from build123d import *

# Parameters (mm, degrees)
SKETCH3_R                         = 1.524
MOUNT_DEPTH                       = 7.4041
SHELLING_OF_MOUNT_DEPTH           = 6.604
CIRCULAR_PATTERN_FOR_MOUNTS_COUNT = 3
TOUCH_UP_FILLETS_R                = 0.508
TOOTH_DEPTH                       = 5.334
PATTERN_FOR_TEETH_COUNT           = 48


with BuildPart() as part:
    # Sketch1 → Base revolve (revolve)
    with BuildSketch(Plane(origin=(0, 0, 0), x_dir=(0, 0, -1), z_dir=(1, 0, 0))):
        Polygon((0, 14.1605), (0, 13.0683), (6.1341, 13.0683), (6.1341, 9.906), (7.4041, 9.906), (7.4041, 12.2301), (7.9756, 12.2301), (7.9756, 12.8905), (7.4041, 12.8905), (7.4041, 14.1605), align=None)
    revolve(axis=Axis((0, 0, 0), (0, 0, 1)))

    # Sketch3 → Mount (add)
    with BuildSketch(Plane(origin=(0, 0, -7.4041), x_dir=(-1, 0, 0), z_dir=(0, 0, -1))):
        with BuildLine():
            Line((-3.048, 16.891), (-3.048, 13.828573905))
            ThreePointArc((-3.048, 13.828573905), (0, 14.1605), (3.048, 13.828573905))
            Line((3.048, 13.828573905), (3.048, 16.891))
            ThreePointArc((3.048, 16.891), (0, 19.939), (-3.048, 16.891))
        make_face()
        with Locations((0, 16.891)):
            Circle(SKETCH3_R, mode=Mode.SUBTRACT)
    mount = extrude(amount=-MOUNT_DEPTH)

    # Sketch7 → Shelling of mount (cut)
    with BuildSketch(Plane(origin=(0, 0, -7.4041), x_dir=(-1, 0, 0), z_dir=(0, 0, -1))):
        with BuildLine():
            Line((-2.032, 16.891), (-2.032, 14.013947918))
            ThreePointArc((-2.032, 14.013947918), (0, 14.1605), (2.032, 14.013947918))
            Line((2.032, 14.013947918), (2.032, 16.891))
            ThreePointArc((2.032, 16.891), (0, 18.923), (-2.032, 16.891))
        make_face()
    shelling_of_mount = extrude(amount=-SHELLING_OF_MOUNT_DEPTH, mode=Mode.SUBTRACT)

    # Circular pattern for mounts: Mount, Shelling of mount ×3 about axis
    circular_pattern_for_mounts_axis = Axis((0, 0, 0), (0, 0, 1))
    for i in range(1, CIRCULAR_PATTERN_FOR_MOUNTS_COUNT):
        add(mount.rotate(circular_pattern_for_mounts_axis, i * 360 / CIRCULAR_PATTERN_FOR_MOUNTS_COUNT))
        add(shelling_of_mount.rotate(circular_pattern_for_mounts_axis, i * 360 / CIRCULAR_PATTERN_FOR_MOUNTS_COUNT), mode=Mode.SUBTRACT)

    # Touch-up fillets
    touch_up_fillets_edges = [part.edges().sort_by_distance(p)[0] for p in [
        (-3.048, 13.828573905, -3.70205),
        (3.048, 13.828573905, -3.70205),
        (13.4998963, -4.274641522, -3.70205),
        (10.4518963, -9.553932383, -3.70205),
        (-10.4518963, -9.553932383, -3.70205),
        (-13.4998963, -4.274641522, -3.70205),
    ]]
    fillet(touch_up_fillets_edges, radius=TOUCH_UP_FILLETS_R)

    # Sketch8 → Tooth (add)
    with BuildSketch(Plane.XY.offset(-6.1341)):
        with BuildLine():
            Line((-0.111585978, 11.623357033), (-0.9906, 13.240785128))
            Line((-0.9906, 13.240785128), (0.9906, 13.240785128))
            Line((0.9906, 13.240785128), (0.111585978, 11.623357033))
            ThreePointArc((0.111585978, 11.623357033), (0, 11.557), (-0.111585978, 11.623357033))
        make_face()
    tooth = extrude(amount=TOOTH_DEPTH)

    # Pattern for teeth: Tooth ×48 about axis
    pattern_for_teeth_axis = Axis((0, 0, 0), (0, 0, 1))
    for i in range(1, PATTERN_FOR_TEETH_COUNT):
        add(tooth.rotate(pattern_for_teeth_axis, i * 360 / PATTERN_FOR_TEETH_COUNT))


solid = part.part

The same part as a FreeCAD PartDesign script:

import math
import FreeCAD as App
import Part
import Sketcher
from FreeCAD import Vector
Q = App.Units.Quantity


def edges_at(feature, points):
    """Names of the edges that pass closest to the given points."""
    edges = feature.Shape.Edges
    near = lambda p: min(range(len(edges)), key=lambda i: edges[i].distToShape(Part.Vertex(*p))[0])
    return sorted({f"Edge{near(p) + 1}" for p in points})


def add_polygon(sketch, points):
    """Adds a closed chain of lines whose ends are joined by coincident constraints."""
    first, n = sketch.GeometryCount, len(points)
    for a, b in zip(points, points[1:] + points[:1]):
        sketch.addGeometry(Part.LineSegment(App.Vector(*a, 0), App.Vector(*b, 0)), False)
    for i in range(n):
        sketch.addConstraint(Sketcher.Constraint("Coincident", first + i, 2, first + (i + 1) % n, 1))

doc = App.newDocument("Part")
body = doc.addObject("PartDesign::Body", "Body")

# Sketch on YZ plane
sketch1 = body.newObject("Sketcher::SketchObject", "Sketch")
sketch1.AttachmentSupport = (doc.getObject("YZ_Plane"), [""])
sketch1.MapMode = "FlatFace"
add_polygon(sketch1, [(14.2, 0), (13.1, 0), (13.1, -6.1), (9.9, -6.1), (9.9, -7.4), (12.2, -7.4), (12.2, -8), (12.9, -8), (12.9, -7.4), (14.2, -7.4)])  # lines 0-9
sketch1.addConstraint([
    Sketcher.Constraint("Horizontal", 0),
    Sketcher.Constraint("Vertical", 1),
    Sketcher.Constraint("Horizontal", 2),
    Sketcher.Constraint("Vertical", 3),
    Sketcher.Constraint("Horizontal", 4),
    Sketcher.Constraint("Vertical", 5),
    Sketcher.Constraint("Horizontal", 6),
    Sketcher.Constraint("Vertical", 7),
    Sketcher.Constraint("Horizontal", 8),
    Sketcher.Constraint("Vertical", 9),
    Sketcher.Constraint("PointOnObject", 0, 2, -1),
    Sketcher.Constraint("Horizontal", 4, 2, 7, 2),
    Sketcher.Constraint("Equal", 8, 3),
    Sketcher.Constraint("DistanceX", 8, 1, 8, 2, Q("0.05 in")),
    Sketcher.Constraint("DistanceX", 0, 2, 0, 1, Q("0.043 in")),
    Sketcher.Constraint("DistanceX", 6, 1, 6, 2, Q("0.026 in")),
    Sketcher.Constraint("DistanceX", -1, 1, 2, 2, Q("0.39 in")),
    Sketcher.Constraint("DistanceX", 2, 2, 2, 1, Q("0.1245 in")),
    Sketcher.Constraint("DistanceY", 1, 2, 1, 1, Q("0.2415 in")),
    Sketcher.Constraint("DistanceY", 5, 2, 5, 1, Q("0.0225 in")),
])
revolution = body.newObject("PartDesign::Revolution", "Revolution")
revolution.Profile = sketch1
revolution.ReferenceAxis = (sketch1, ["V_Axis"])
revolution.Angle = 360

# Sketch on XY plane
sketch2 = body.newObject("Sketcher::SketchObject", "Sketch001")
sketch2.AttachmentSupport = (doc.getObject("XY_Plane"), [""])
sketch2.MapMode = "FlatFace"
sketch2.AttachmentOffset = App.Placement(Vector(0, 0, -0.2915 * 25.4), App.Rotation())
sketch2.addGeometry([
    Part.LineSegment(Vector(3, 16.9, 0), Vector(3, 13.8, 0)),  # 0
    Part.ArcOfCircle(Part.Circle(Vector(0, 0, 0), Vector(0, 0, 1), 14.2), math.radians(78), math.radians(102)),  # 1
    Part.LineSegment(Vector(-3, 13.8, 0), Vector(-3, 16.9, 0)),  # 2
    Part.ArcOfCircle(Part.Circle(Vector(0, 16.9, 0), Vector(0, 0, 1), 3), math.radians(0), math.radians(180)),  # 3
    Part.Circle(Vector(0, 16.9, 0), Vector(0, 0, 1), 1.5),  # 4
], False)
sketch2.addConstraint([
    Sketcher.Constraint("Coincident", 0, 2, 1, 1),
    Sketcher.Constraint("Coincident", 1, 2, 2, 1),
    Sketcher.Constraint("Tangent", 2, 2, 3, 2),
    Sketcher.Constraint("Tangent", 3, 1, 0, 1),
    Sketcher.Constraint("Vertical", 0),
    Sketcher.Constraint("Vertical", 2),
    Sketcher.Constraint("Coincident", 1, 3, -1, 1),
    Sketcher.Constraint("Coincident", 4, 3, 3, 3),
    Sketcher.Constraint("PointOnObject", 3, 3, -2),
    Sketcher.Constraint("Diameter", 4, Q("0.12 in")),
    Sketcher.Constraint("Radius", 3, Q("0.12 in")),
    Sketcher.Constraint("Radius", 1, Q("0.5575 in")),
    Sketcher.Constraint("DistanceY", -1, 1, 3, 3, Q("0.665 in")),
])
pad1 = body.newObject("PartDesign::Pad", "Pad")
pad1.Profile = sketch2
pad1.Length = Q("0.2915 in")

# Sketch on XY plane
sketch3 = body.newObject("Sketcher::SketchObject", "Sketch002")
sketch3.AttachmentSupport = (doc.getObject("XY_Plane"), [""])
sketch3.MapMode = "FlatFace"
sketch3.AttachmentOffset = App.Placement(Vector(0, 0, -0.2915 * 25.4), App.Rotation())
sketch3.addGeometry([
    Part.LineSegment(Vector(2, 16.9, 0), Vector(2, 14, 0)),
    Part.ArcOfCircle(Part.Circle(Vector(0, 0, 0), Vector(0, 0, 1), 14.2), math.radians(81.75), math.radians(98.25)),
    Part.LineSegment(Vector(-2, 14, 0), Vector(-2, 16.9, 0)),
    Part.ArcOfCircle(Part.Circle(Vector(0, 16.9, 0), Vector(0, 0, 1), 2), math.radians(0), math.radians(180)),
], False)
sketch3.addConstraint([
    Sketcher.Constraint("Coincident", 0, 2, 1, 1),
    Sketcher.Constraint("Coincident", 1, 2, 2, 1),
    Sketcher.Constraint("Tangent", 2, 2, 3, 2),
    Sketcher.Constraint("Tangent", 3, 1, 0, 1),
    Sketcher.Constraint("Vertical", 0),
    Sketcher.Constraint("Vertical", 2),
    Sketcher.Constraint("Coincident", 1, 3, -1, 1),
    Sketcher.Constraint("PointOnObject", 3, 3, -2),
    Sketcher.Constraint("Radius", 3, Q("0.08 in")),
    Sketcher.Constraint("Radius", 1, Q("0.5575 in")),
    Sketcher.Constraint("DistanceY", -1, 1, 3, 3, Q("0.665 in")),
])
pocket1 = body.newObject("PartDesign::Pocket", "Pocket")
pocket1.Profile = sketch3
pocket1.Length = Q("0.26 in")
pocket1.Reversed = True
doc.recompute()

polarpattern = body.newObject("PartDesign::PolarPattern", "PolarPattern")
polarpattern.Originals = [pad1, pocket1]
polarpattern.Axis = (doc.getObject("Z_Axis"), [""])
polarpattern.Angle = 360
polarpattern.Occurrences = 3
body.Tip = polarpattern
doc.recompute()

fillet = body.newObject("PartDesign::Fillet", "Fillet")
fillet.Base = (polarpattern, edges_at(polarpattern, [
    (-3.048, 13.829, -3.702),
    (3.048, 13.829, -3.702),
    (13.5, -4.275, -3.702),
    (10.452, -9.554, -3.702),
    (-10.452, -9.554, -3.702),
    (-13.5, -4.275, -3.702),
]))
fillet.Radius = Q("0.02 in")

# Sketch on XY plane
sketch4 = body.newObject("Sketcher::SketchObject", "Sketch003")
sketch4.AttachmentSupport = (doc.getObject("XY_Plane"), [""])
sketch4.MapMode = "FlatFace"
sketch4.AttachmentOffset = App.Placement(Vector(0, 0, -0.2415 * 25.4), App.Rotation())
sketch4.addGeometry([
    Part.LineSegment(Vector(-0.99, 13.24, 0), Vector(-0.11, 11.62, 0)),
    Part.ArcOfCircle(Part.Circle(Vector(0, 11.68, 0), Vector(0, 0, 1), 0.13), math.radians(-151), math.radians(-29)),
    Part.LineSegment(Vector(0.11, 11.62, 0), Vector(0.99, 13.24, 0)),
    Part.LineSegment(Vector(0.99, 13.24, 0), Vector(-0.99, 13.24, 0)),
], False)
sketch4.addConstraint([
    Sketcher.Constraint("Tangent", 0, 2, 1, 1),
    Sketcher.Constraint("Tangent", 1, 2, 2, 1),
    Sketcher.Constraint("Coincident", 2, 2, 3, 1),
    Sketcher.Constraint("Coincident", 3, 2, 0, 1),
    Sketcher.Constraint("Horizontal", 3),
    Sketcher.Constraint("Symmetric", 0, 2, 1, 2, -2),
    Sketcher.Constraint("Radius", 1, Q("0.005 in")),
    Sketcher.Constraint("DistanceX", 3, 2, 3, 1, Q("0.078 in")),
    Sketcher.Constraint("DistanceY", -1, 1, 1, 3, Q("0.46 in")),
    Sketcher.Constraint("DistanceX", 0, 2, 1, 2, Q("0.223172 mm")),
])
pad2 = body.newObject("PartDesign::Pad", "Pad001")
pad2.Profile = sketch4
pad2.Length = Q("0.21 in")
doc.recompute()

polarpattern2 = body.newObject("PartDesign::PolarPattern", "PolarPattern001")
polarpattern2.Originals = [pad2]
polarpattern2.Axis = (doc.getObject("Z_Axis"), [""])
polarpattern2.Angle = 360
polarpattern2.Occurrences = 48
body.Tip = polarpattern2

doc.recompute()
